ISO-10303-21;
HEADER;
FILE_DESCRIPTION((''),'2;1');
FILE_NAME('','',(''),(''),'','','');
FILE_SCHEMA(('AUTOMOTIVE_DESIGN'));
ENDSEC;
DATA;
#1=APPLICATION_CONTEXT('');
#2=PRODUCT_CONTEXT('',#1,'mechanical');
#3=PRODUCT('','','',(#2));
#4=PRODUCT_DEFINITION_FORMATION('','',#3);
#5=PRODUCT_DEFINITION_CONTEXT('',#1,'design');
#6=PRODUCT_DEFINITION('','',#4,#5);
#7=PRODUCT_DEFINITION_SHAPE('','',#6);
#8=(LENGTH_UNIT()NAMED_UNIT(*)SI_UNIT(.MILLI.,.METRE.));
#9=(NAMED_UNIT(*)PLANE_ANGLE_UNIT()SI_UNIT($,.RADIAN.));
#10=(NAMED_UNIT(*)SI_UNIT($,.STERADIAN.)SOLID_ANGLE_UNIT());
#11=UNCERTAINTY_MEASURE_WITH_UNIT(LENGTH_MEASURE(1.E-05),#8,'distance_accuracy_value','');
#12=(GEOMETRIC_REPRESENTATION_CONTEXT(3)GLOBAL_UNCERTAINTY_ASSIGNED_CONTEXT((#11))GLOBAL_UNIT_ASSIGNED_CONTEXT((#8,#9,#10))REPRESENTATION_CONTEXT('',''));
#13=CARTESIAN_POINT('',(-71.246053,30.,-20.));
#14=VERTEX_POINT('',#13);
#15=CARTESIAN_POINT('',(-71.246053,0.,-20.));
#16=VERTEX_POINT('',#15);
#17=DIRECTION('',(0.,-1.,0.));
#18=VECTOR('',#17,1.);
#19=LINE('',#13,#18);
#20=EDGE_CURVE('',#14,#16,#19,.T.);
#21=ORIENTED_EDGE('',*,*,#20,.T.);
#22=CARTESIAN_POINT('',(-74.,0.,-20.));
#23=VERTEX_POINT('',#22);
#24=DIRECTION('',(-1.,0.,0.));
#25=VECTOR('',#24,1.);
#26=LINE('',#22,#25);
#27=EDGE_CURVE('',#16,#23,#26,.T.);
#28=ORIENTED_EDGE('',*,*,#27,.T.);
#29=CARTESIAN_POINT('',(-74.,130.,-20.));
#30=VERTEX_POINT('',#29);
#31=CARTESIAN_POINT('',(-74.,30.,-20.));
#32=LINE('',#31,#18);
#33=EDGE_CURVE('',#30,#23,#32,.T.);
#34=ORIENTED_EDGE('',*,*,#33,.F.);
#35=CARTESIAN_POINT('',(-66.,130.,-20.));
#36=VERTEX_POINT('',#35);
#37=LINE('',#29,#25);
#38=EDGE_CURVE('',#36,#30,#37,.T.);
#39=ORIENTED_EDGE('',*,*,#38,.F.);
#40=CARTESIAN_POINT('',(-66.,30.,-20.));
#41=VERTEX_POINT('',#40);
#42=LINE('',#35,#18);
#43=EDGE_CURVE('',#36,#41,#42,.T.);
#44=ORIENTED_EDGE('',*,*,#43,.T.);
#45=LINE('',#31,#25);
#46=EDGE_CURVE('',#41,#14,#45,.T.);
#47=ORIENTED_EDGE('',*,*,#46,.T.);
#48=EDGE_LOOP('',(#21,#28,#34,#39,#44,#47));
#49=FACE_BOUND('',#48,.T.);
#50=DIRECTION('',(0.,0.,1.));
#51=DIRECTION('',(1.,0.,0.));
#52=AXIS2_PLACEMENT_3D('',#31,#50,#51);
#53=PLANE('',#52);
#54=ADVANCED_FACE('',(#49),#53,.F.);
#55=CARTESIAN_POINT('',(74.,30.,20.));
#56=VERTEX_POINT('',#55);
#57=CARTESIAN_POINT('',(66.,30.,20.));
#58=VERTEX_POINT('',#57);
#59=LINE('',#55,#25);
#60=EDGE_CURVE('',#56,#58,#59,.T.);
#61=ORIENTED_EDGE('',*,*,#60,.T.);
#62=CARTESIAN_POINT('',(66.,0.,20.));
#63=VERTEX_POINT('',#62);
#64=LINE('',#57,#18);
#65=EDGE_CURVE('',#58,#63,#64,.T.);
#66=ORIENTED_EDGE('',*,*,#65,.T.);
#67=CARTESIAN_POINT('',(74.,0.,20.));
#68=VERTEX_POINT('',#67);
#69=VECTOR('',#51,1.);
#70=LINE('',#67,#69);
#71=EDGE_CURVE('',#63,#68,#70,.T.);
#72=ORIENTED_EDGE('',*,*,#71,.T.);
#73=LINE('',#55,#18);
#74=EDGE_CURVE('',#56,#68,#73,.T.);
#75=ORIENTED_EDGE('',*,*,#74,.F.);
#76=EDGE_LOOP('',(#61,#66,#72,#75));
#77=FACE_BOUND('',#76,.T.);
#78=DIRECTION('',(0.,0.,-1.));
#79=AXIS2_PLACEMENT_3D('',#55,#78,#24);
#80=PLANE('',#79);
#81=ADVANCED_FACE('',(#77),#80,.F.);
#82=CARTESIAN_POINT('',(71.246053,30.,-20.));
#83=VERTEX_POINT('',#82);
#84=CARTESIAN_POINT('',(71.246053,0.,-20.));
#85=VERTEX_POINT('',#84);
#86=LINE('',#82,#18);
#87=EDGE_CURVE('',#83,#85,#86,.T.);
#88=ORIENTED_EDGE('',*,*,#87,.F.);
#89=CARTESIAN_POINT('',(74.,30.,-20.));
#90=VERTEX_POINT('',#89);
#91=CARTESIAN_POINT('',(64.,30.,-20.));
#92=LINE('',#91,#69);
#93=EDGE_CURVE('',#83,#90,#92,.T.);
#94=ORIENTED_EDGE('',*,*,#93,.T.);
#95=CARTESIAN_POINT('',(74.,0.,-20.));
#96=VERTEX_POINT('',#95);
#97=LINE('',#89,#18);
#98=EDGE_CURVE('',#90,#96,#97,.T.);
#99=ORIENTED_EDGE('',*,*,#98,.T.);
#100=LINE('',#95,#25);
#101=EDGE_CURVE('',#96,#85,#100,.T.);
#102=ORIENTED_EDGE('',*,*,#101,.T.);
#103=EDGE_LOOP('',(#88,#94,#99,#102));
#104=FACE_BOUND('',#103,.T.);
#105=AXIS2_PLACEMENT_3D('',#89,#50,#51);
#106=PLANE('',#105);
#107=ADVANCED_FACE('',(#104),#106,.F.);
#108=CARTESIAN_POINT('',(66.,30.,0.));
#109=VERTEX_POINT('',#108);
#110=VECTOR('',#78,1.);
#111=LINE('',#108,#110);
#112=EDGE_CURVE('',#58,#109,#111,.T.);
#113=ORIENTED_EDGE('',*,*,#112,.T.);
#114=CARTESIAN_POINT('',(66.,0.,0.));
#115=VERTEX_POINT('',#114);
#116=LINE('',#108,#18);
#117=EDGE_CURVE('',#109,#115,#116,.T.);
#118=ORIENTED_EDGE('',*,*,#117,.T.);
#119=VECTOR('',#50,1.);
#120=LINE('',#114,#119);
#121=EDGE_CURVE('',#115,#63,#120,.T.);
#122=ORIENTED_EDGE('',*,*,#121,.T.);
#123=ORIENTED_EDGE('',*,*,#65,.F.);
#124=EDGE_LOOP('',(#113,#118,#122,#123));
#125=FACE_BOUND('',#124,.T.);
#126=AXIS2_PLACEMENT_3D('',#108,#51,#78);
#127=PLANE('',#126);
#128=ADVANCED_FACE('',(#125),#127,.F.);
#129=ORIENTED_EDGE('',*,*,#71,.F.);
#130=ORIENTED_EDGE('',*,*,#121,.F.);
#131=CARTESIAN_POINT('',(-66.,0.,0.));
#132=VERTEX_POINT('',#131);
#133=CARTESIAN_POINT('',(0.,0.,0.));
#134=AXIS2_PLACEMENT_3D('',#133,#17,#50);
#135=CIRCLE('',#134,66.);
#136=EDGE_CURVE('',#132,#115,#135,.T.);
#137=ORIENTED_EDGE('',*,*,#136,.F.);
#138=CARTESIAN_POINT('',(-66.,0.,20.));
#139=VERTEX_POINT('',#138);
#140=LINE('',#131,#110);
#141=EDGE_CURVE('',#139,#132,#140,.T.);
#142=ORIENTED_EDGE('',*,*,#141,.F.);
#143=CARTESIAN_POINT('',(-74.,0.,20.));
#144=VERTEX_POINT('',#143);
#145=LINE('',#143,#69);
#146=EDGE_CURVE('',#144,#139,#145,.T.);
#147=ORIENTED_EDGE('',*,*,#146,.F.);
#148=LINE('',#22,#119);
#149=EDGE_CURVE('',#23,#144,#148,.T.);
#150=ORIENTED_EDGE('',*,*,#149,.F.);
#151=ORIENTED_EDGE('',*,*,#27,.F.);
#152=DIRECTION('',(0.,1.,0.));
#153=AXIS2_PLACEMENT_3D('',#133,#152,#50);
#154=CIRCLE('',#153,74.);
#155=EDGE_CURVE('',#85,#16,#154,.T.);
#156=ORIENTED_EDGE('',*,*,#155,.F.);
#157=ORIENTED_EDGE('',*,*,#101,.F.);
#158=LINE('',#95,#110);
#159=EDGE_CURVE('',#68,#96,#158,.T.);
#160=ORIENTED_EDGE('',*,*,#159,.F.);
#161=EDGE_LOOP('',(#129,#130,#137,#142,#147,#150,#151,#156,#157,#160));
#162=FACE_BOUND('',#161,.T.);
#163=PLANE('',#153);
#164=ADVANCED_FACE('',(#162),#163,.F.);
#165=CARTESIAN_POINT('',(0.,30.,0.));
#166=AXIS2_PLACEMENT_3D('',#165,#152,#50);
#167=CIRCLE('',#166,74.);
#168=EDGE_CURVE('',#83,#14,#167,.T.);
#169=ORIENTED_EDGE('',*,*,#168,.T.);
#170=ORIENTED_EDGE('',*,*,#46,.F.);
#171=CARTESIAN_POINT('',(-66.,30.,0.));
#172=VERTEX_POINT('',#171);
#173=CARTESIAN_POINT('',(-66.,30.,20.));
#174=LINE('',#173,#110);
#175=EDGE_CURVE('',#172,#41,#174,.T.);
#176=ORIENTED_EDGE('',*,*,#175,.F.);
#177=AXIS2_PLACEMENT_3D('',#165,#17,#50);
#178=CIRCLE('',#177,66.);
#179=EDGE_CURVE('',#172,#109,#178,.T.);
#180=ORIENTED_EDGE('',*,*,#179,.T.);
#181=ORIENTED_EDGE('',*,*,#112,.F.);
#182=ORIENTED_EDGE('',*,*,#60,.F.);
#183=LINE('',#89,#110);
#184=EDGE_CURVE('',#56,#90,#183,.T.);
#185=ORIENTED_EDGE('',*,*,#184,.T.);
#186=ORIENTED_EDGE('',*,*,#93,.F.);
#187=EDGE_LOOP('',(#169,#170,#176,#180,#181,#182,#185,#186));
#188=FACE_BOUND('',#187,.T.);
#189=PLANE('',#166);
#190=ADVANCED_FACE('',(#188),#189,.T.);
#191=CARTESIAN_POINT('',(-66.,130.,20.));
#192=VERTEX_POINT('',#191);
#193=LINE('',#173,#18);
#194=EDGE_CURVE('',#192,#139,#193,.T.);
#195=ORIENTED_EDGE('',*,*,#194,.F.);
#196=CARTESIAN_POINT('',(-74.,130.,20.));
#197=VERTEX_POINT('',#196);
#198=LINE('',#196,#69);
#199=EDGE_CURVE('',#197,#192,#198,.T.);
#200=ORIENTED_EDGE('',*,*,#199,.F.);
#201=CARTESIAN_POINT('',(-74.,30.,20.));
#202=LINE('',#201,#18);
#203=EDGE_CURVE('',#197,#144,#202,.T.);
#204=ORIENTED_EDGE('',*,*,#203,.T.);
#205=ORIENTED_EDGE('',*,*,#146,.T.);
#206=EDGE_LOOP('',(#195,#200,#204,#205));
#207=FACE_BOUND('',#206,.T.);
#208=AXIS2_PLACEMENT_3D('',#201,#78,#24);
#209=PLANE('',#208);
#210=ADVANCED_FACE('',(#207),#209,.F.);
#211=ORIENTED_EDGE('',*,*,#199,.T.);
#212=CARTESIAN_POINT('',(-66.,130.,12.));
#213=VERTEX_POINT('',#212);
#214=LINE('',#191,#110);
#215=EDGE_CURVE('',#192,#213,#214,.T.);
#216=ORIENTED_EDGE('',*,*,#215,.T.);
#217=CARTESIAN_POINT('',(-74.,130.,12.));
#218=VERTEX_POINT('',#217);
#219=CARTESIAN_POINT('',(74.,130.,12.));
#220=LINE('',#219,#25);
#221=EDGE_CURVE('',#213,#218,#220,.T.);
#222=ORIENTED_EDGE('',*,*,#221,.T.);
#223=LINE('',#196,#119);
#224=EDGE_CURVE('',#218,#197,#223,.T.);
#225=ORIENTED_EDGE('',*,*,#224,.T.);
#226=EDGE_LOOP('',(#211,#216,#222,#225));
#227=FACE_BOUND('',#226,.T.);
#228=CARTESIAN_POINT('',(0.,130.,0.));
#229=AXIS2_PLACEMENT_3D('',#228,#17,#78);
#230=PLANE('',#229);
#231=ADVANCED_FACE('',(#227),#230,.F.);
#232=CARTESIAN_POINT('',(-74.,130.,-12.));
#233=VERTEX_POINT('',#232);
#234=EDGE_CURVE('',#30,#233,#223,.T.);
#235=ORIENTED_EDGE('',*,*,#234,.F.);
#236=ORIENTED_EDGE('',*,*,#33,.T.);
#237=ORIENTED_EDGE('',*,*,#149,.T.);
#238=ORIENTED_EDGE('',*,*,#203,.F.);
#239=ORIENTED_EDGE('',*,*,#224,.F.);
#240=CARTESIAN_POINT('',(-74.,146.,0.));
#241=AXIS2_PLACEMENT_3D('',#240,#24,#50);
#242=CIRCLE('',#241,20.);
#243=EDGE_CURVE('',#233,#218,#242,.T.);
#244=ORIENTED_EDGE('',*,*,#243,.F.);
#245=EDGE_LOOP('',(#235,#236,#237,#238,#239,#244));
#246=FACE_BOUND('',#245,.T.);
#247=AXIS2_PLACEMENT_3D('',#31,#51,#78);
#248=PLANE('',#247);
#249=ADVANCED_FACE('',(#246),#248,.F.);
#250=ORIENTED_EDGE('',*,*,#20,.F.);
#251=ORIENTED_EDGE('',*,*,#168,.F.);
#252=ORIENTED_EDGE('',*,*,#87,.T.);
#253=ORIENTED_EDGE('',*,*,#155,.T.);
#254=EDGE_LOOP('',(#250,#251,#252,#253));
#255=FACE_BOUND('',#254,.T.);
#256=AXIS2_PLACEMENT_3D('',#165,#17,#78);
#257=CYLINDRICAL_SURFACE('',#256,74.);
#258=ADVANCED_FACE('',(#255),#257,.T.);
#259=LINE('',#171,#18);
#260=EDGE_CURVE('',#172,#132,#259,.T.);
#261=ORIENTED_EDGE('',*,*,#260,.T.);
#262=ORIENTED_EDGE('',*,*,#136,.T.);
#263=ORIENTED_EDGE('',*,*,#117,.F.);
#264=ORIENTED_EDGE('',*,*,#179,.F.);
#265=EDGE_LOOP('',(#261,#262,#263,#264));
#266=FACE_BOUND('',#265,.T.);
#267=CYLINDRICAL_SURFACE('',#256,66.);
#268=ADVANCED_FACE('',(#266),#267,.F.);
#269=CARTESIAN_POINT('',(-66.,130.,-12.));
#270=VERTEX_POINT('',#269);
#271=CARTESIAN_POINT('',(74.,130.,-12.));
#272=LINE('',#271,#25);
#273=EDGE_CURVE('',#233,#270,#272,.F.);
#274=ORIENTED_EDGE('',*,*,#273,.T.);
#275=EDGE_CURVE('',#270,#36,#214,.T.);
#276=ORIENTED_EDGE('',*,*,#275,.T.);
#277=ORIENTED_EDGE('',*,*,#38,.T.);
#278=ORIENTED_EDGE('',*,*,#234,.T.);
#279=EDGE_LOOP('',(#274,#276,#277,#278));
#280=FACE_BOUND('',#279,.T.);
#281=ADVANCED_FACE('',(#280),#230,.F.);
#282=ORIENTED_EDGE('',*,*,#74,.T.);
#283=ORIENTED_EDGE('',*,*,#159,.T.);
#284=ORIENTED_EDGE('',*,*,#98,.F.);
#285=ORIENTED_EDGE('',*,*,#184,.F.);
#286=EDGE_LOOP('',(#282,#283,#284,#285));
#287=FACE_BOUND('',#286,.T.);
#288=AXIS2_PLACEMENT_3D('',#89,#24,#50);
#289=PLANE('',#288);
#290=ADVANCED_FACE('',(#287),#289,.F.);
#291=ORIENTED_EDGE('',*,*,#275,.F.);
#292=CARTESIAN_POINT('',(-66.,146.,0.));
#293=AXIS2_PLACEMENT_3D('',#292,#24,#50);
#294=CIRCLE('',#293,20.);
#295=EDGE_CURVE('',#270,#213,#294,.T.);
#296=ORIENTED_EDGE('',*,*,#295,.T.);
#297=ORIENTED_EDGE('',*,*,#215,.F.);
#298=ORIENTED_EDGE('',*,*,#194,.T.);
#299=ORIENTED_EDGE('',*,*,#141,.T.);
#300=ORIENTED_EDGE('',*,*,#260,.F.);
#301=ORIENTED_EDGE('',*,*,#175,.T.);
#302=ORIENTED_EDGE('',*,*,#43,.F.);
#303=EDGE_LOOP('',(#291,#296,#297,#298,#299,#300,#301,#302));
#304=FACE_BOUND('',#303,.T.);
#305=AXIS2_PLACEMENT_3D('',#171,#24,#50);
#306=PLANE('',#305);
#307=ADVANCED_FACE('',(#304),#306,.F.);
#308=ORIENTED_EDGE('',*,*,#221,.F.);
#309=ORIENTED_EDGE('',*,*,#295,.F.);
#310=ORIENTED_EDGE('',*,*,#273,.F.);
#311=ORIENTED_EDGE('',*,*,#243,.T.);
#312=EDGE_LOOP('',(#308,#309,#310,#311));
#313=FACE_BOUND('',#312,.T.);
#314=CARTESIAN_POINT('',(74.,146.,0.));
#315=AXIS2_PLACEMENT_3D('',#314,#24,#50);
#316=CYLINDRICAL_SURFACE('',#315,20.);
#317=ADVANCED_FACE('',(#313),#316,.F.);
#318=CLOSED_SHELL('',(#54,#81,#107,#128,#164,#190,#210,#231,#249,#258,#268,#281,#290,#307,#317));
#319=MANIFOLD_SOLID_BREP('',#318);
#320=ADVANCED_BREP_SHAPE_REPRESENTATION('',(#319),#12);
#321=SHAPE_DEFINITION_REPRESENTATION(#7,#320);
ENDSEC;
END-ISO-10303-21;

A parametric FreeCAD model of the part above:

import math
import FreeCAD as App
import Part
import Sketcher
from FreeCAD import Vector
Q = App.Units.Quantity


def add_polygon(sketch, points):
    """Adds a closed chain of lines whose ends are joined by coincident constraints."""
    first, n = sketch.GeometryCount, len(points)
    for a, b in zip(points, points[1:] + points[:1]):
        sketch.addGeometry(Part.LineSegment(App.Vector(*a, 0), App.Vector(*b, 0)), False)
    for i in range(n):
        sketch.addConstraint(Sketcher.Constraint("Coincident", first + i, 2, first + (i + 1) % n, 1))

doc = App.newDocument("Part")
body = doc.addObject("PartDesign::Body", "Body")

sketch1 = body.newObject("Sketcher::SketchObject", "Sketch")
sketch1.AttachmentSupport = (doc.getObject("XZ_Plane"), [""])
sketch1.MapMode = "FlatFace"
sketch1.addGeometry([
    Part.LineSegment(Vector(-71.246053, -20, 0), Vector(-74, -20, 0)),
    Part.LineSegment(Vector(-74, -20, 0), Vector(-74, 20, 0)),
    Part.LineSegment(Vector(-74, 20, 0), Vector(-66, 20, 0)),
    Part.LineSegment(Vector(-66, 20, 0), Vector(-66, 0, 0)),
    Part.ArcOfCircle(Part.Circle(Vector(0, 0, 0), Vector(0, 0, 1), 66), math.radians(180), math.radians(360)),
    Part.LineSegment(Vector(66, 0, 0), Vector(66, 20, 0)),
    Part.LineSegment(Vector(66, 20, 0), Vector(74, 20, 0)),
    Part.LineSegment(Vector(74, 20, 0), Vector(74, -20, 0)),
    Part.LineSegment(Vector(74, -20, 0), Vector(71.246053, -20, 0)),
    Part.ArcOfCircle(Part.Circle(Vector(0, 0, 0), Vector(0, 0, 1), 74), math.radians(-164.31965), math.radians(-15.68035)),
], False)
sketch1.addConstraint([
    Sketcher.Constraint("Coincident", 0, 2, 1, 1),
    Sketcher.Constraint("Coincident", 1, 2, 2, 1),
    Sketcher.Constraint("Coincident", 2, 2, 3, 1),
    Sketcher.Constraint("Tangent", 3, 2, 4, 1),
    Sketcher.Constraint("Tangent", 4, 2, 5, 1),
    Sketcher.Constraint("Coincident", 5, 2, 6, 1),
    Sketcher.Constraint("Coincident", 6, 2, 7, 1),
    Sketcher.Constraint("Coincident", 7, 2, 8, 1),
    Sketcher.Constraint("Coincident", 8, 2, 9, 2),
    Sketcher.Constraint("Coincident", 9, 1, 0, 1),
    Sketcher.Constraint("Horizontal", 0),
    Sketcher.Constraint("Vertical", 1),
    Sketcher.Constraint("Horizontal", 2),
    Sketcher.Constraint("Vertical", 3),
    Sketcher.Constraint("Vertical", 5),
    Sketcher.Constraint("Horizontal", 6),
    Sketcher.Constraint("Vertical", 7),
    Sketcher.Constraint("Horizontal", 8),
    Sketcher.Constraint("Coincident", 4, 3, -1, 1),
    Sketcher.Constraint("Coincident", 9, 3, -1, 1),
    Sketcher.Constraint("Symmetric", 0, 2, 6, 2, -1, 1),
    Sketcher.Constraint("Horizontal", 2, 2, 5, 2),
    Sketcher.Constraint("Horizontal", 0, 2, 7, 2),
    Sketcher.Constraint("Radius", 4, Q("66 mm")),
    Sketcher.Constraint("Radius", 9, Q("74 mm")),
    Sketcher.Constraint("DistanceX", 2, 1, 2, 2, Q("8 mm")),
    Sketcher.Constraint("DistanceY", 1, 1, 1, 2, Q("40 mm")),
])
pad1 = body.newObject("PartDesign::Pad", "Pad")
pad1.Profile = sketch1
pad1.Length = 30
pad1.Reversed = True

sketch2 = body.newObject("Sketcher::SketchObject", "Sketch001")
sketch2.AttachmentSupport = (doc.getObject("XZ_Plane"), [""])
sketch2.MapMode = "FlatFace"
sketch2.AttachmentOffset = App.Placement(Vector(0, 0, -30), App.Rotation())
add_polygon(sketch2, [(-74, -20), (-74, 20), (-66, 20), (-66, -20)])
add_polygon(sketch2, [(66, -20), (66, 20), (74, 20), (74, -20)])
sketch2.addConstraint([
    Sketcher.Constraint("Vertical", 0),
    Sketcher.Constraint("Horizontal", 1),
    Sketcher.Constraint("Vertical", 2),
    Sketcher.Constraint("Horizontal", 3),
    Sketcher.Constraint("Vertical", 4),
    Sketcher.Constraint("Horizontal", 5),
    Sketcher.Constraint("Vertical", 6),
    Sketcher.Constraint("Horizontal", 7),
    Sketcher.Constraint("Symmetric", 2, 2, 4, 2, -1, 1),
    Sketcher.Constraint("Symmetric", 0, 2, 6, 2, -1, 1),
    Sketcher.Constraint("Horizontal", 1, 2, 4, 2),
    Sketcher.Constraint("DistanceX", 1, 1, 1, 2, Q("8 mm")),
    Sketcher.Constraint("DistanceY", 0, 1, 0, 2, Q("40 mm")),
    Sketcher.Constraint("DistanceX", 0, 2, -1, 1, Q("74 mm")),
])
pad2 = body.newObject("PartDesign::Pad", "Pad001")
pad2.Profile = sketch2
pad2.Length = 100
pad2.Reversed = True

sketch3 = body.newObject("Sketcher::SketchObject", "Sketch002")
sketch3.AttachmentSupport = (doc.getObject("YZ_Plane"), [""])
sketch3.MapMode = "FlatFace"
sketch3.AttachmentOffset = App.Placement(Vector(0, 0, -74), App.Rotation())
sketch3.addGeometry(Part.Circle(Vector(146, 0, 0), Vector(0, 0, 1), 20), False)
sketch3.addConstraint([
    Sketcher.Constraint("PointOnObject", 0, 3, -1),
    Sketcher.Constraint("Diameter", 0, Q("40 mm")),
    Sketcher.Constraint("DistanceX", -1, 1, 0, 3, Q("146 mm")),
])
pocket1 = body.newObject("PartDesign::Pocket", "Pocket")
pocket1.Profile = sketch3
pocket1.Type = "ThroughAll"
pocket1.Reversed = True

sketch4 = body.newObject("Sketcher::SketchObject", "Sketch003")
sketch4.AttachmentSupport = (doc.getObject("YZ_Plane"), [""])
sketch4.MapMode = "FlatFace"
sketch4.AttachmentOffset = App.Placement(Vector(0, 0, 74), App.Rotation())
add_polygon(sketch4, [(135.192302, 67.007662), (30, 67.007662), (30, -20), (135.192302, -20)])
sketch4.addConstraint([
    Sketcher.Constraint("Horizontal", 0),
    Sketcher.Constraint("Vertical", 1),
    Sketcher.Constraint("Horizontal", 2),
    Sketcher.Constraint("Vertical", 3),
    Sketcher.Constraint("DistanceX", -1, 1, 0, 2, Q("30 mm")),
    Sketcher.Constraint("DistanceY", 1, 2, -1, 1, Q("20 mm")),
    Sketcher.Constraint("DistanceX", 0, 2, 0, 1, Q("105.192302 mm")),
    Sketcher.Constraint("DistanceY", 1, 2, 1, 1, Q("87.007662 mm")),
])
pocket2 = body.newObject("PartDesign::Pocket", "Pocket001")
pocket2.Profile = sketch4
pocket2.Length = 10

doc.recompute()
